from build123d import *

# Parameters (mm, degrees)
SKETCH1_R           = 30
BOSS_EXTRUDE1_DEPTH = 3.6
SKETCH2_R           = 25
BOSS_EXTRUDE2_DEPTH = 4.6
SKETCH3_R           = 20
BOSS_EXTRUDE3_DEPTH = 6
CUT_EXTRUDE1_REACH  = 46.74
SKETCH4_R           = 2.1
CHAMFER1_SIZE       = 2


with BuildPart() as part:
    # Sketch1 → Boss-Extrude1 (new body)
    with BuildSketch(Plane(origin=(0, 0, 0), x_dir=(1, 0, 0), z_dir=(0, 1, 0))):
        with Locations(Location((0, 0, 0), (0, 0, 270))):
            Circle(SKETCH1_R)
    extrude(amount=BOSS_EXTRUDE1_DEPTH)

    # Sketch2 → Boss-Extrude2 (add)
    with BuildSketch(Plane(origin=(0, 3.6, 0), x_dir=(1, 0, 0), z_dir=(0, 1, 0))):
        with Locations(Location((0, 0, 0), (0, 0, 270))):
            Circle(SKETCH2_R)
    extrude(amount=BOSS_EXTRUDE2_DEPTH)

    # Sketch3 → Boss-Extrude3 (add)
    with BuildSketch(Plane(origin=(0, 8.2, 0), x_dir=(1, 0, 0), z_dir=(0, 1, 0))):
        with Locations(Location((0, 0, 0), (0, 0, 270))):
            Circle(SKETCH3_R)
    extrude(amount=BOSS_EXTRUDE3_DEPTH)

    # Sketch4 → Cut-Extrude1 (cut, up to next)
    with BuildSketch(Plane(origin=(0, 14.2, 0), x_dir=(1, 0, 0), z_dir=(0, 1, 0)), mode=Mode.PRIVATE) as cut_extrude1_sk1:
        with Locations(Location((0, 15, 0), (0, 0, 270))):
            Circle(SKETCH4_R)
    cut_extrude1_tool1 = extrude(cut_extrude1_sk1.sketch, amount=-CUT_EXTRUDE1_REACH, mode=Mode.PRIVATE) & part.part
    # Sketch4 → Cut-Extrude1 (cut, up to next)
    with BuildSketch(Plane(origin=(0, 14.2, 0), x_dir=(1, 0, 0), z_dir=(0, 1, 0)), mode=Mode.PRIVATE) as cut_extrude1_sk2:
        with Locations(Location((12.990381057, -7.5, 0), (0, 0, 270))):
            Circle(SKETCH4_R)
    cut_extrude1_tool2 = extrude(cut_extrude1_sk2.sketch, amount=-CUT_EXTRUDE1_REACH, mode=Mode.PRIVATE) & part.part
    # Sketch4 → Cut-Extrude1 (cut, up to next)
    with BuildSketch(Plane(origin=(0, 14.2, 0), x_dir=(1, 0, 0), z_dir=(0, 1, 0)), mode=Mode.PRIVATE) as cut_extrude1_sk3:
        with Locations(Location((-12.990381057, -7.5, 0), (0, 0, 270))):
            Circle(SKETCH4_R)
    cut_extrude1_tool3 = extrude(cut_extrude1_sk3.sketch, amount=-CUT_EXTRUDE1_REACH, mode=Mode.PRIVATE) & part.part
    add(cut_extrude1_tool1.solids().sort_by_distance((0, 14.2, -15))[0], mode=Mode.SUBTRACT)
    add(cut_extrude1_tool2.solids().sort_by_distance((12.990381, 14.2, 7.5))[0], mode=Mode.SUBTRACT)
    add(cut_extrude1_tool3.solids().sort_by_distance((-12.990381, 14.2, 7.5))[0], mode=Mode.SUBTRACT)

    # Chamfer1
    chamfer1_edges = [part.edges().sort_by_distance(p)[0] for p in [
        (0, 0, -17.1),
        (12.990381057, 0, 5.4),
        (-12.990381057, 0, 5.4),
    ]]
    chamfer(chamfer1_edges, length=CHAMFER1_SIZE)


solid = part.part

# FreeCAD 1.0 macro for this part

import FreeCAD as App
import Part
import Sketcher

V = App.Vector


def edges_at(feature, points):
    """Names of the edges that pass closest to the given points."""
    edges = feature.Shape.Edges
    near = lambda p: min(range(len(edges)), key=lambda i: edges[i].distToShape(Part.Vertex(*p))[0])
    return sorted({f"Edge{near(p) + 1}" for p in points})

doc = App.newDocument("Part")
params = doc.addObject("Spreadsheet::Sheet", "Params")
for row, (alias, value) in enumerate([
    ("sketch1_diameter", "60 mm"),
    ("pad1_length", "3.6 mm"),
    ("sketch2_diameter", "50 mm"),
    ("pad2_length", "4.6 mm"),
    ("sketch3_diameter", "40 mm"),
    ("pad3_length", "6 mm"),
    ("sketch4_diameter", "4.2 mm"),
    ("sketch5_diameter", "4.2 mm"),
    ("sketch6_diameter", "4.2 mm"),
    ("chamfer_size", "2 mm"),
], start=1):
    params.set(f"A{row}", alias)
    params.set(f"B{row}", "=" + value)
    params.setAlias(f"B{row}", alias)

body = doc.addObject("PartDesign::Body", "Body")

# Sketch on XZ plane
sketch1 = doc.addObject("Sketcher::SketchObject", "Sketch")
body.addObject(sketch1)
sketch1.AttachmentSupport = (doc.XZ_Plane, [""])
sketch1.MapMode = "FlatFace"
sketch1.addGeometry(Part.Circle(V(0, 0, 0), V(0, 0, 1), 30), False)
sketch1.addConstraint(Sketcher.Constraint("Coincident", 0, 3, -1, 1))
sketch1.addConstraint(Sketcher.Constraint("Diameter", 0, 60.0))
sketch1.setExpression("Constraints[1]", "Params.sketch1_diameter")
pad1 = doc.addObject("PartDesign::Pad", "Pad")
body.addObject(pad1)
pad1.Profile = sketch1
pad1.setExpression("Length", "Params.pad1_length")
pad1.Reversed = True

# Sketch on XZ plane
sketch2 = doc.addObject("Sketcher::SketchObject", "Sketch001")
body.addObject(sketch2)
sketch2.AttachmentSupport = (doc.XZ_Plane, [""])
sketch2.MapMode = "FlatFace"
sketch2.AttachmentOffset = App.Placement(V(0, 0, -3.6), App.Rotation())
sketch2.addGeometry(Part.Circle(V(0, 0, 0), V(0, 0, 1), 25), False)
sketch2.addConstraint(Sketcher.Constraint("Coincident", 0, 3, -1, 1))
sketch2.addConstraint(Sketcher.Constraint("Diameter", 0, 50.0))
sketch2.setExpression("Constraints[1]", "Params.sketch2_diameter")
pad2 = doc.addObject("PartDesign::Pad", "Pad001")
body.addObject(pad2)
pad2.Profile = sketch2
pad2.setExpression("Length", "Params.pad2_length")
pad2.Reversed = True

# Sketch on XZ plane
sketch3 = doc.addObject("Sketcher::SketchObject", "Sketch002")
body.addObject(sketch3)
sketch3.AttachmentSupport = (doc.XZ_Plane, [""])
sketch3.MapMode = "FlatFace"
sketch3.AttachmentOffset = App.Placement(V(0, 0, -8.2), App.Rotation())
sketch3.addGeometry(Part.Circle(V(0, 0, 0), V(0, 0, 1), 20), False)
sketch3.addConstraint(Sketcher.Constraint("Coincident", 0, 3, -1, 1))
sketch3.addConstraint(Sketcher.Constraint("Diameter", 0, 40.0))
sketch3.setExpression("Constraints[1]", "Params.sketch3_diameter")
pad3 = doc.addObject("PartDesign::Pad", "Pad002")
body.addObject(pad3)
pad3.Profile = sketch3
pad3.setExpression("Length", "Params.pad3_length")
pad3.Reversed = True

# Sketch on XZ plane
sketch4 = doc.addObject("Sketcher::SketchObject", "Sketch003")
body.addObject(sketch4)
sketch4.AttachmentSupport = (doc.XZ_Plane, [""])
sketch4.MapMode = "FlatFace"
sketch4.AttachmentOffset = App.Placement(V(0, 0, -14.2), App.Rotation())
sketch4.addGeometry(Part.Circle(V(0, -15, 0), V(0, 0, 1), 2.1), False)
sketch4.addConstraint(Sketcher.Constraint("PointOnObject", 0, 3, -2))
sketch4.addConstraint(Sketcher.Constraint("Diameter", 0, 4.2))
sketch4.addConstraint(Sketcher.Constraint("DistanceY", 0, 3, -1, 1, 15.0))
sketch4.setExpression("Constraints[1]", "Params.sketch4_diameter")
pocket1 = doc.addObject("PartDesign::Pocket", "Pocket")
body.addObject(pocket1)
pocket1.Profile = sketch4
pocket1.Type = "UpToFirst"
pocket1.Reversed = True

# Sketch on XZ plane
sketch5 = doc.addObject("Sketcher::SketchObject", "Sketch004")
body.addObject(sketch5)
sketch5.AttachmentSupport = (doc.XZ_Plane, [""])
sketch5.MapMode = "FlatFace"
sketch5.AttachmentOffset = App.Placement(V(0, 0, -14.2), App.Rotation())
sketch5.addGeometry(Part.Circle(V(13, 7.5, 0), V(0, 0, 1), 2.1), False)
sketch5.addConstraint(Sketcher.Constraint("Diameter", 0, 4.2))
sketch5.addConstraint(Sketcher.Constraint("DistanceY", -1, 1, 0, 3, 7.5))
sketch5.addConstraint(Sketcher.Constraint("DistanceX", -1, 1, 0, 3, 12.990381))
sketch5.setExpression("Constraints[0]", "Params.sketch5_diameter")
pocket2 = doc.addObject("PartDesign::Pocket", "Pocket001")
body.addObject(pocket2)
pocket2.Profile = sketch5
pocket2.Type = "UpToFirst"
pocket2.Reversed = True

# Sketch on XZ plane
sketch6 = doc.addObject("Sketcher::SketchObject", "Sketch005")
body.addObject(sketch6)
sketch6.AttachmentSupport = (doc.XZ_Plane, [""])
sketch6.MapMode = "FlatFace"
sketch6.AttachmentOffset = App.Placement(V(0, 0, -14.2), App.Rotation())
sketch6.addGeometry(Part.Circle(V(-13, 7.5, 0), V(0, 0, 1), 2.1), False)
sketch6.addConstraint(Sketcher.Constraint("Diameter", 0, 4.2))
sketch6.addConstraint(Sketcher.Constraint("DistanceY", -1, 1, 0, 3, 7.5))
sketch6.addConstraint(Sketcher.Constraint("DistanceX", 0, 3, -1, 1, 12.990381))
sketch6.setExpression("Constraints[0]", "Params.sketch6_diameter")
pocket3 = doc.addObject("PartDesign::Pocket", "Pocket002")
body.addObject(pocket3)
pocket3.Profile = sketch6
pocket3.Type = "UpToFirst"
pocket3.Reversed = True
doc.recompute()

chamfer = doc.addObject("PartDesign::Chamfer", "Chamfer")
body.addObject(chamfer)
chamfer.Base = (pocket3, edges_at(pocket3, [(0, 0, -17.1), (12.99, 0, 5.4), (-12.99, 0, 5.4)]))
chamfer.setExpression("Size", "Params.chamfer_size")

doc.recompute()
